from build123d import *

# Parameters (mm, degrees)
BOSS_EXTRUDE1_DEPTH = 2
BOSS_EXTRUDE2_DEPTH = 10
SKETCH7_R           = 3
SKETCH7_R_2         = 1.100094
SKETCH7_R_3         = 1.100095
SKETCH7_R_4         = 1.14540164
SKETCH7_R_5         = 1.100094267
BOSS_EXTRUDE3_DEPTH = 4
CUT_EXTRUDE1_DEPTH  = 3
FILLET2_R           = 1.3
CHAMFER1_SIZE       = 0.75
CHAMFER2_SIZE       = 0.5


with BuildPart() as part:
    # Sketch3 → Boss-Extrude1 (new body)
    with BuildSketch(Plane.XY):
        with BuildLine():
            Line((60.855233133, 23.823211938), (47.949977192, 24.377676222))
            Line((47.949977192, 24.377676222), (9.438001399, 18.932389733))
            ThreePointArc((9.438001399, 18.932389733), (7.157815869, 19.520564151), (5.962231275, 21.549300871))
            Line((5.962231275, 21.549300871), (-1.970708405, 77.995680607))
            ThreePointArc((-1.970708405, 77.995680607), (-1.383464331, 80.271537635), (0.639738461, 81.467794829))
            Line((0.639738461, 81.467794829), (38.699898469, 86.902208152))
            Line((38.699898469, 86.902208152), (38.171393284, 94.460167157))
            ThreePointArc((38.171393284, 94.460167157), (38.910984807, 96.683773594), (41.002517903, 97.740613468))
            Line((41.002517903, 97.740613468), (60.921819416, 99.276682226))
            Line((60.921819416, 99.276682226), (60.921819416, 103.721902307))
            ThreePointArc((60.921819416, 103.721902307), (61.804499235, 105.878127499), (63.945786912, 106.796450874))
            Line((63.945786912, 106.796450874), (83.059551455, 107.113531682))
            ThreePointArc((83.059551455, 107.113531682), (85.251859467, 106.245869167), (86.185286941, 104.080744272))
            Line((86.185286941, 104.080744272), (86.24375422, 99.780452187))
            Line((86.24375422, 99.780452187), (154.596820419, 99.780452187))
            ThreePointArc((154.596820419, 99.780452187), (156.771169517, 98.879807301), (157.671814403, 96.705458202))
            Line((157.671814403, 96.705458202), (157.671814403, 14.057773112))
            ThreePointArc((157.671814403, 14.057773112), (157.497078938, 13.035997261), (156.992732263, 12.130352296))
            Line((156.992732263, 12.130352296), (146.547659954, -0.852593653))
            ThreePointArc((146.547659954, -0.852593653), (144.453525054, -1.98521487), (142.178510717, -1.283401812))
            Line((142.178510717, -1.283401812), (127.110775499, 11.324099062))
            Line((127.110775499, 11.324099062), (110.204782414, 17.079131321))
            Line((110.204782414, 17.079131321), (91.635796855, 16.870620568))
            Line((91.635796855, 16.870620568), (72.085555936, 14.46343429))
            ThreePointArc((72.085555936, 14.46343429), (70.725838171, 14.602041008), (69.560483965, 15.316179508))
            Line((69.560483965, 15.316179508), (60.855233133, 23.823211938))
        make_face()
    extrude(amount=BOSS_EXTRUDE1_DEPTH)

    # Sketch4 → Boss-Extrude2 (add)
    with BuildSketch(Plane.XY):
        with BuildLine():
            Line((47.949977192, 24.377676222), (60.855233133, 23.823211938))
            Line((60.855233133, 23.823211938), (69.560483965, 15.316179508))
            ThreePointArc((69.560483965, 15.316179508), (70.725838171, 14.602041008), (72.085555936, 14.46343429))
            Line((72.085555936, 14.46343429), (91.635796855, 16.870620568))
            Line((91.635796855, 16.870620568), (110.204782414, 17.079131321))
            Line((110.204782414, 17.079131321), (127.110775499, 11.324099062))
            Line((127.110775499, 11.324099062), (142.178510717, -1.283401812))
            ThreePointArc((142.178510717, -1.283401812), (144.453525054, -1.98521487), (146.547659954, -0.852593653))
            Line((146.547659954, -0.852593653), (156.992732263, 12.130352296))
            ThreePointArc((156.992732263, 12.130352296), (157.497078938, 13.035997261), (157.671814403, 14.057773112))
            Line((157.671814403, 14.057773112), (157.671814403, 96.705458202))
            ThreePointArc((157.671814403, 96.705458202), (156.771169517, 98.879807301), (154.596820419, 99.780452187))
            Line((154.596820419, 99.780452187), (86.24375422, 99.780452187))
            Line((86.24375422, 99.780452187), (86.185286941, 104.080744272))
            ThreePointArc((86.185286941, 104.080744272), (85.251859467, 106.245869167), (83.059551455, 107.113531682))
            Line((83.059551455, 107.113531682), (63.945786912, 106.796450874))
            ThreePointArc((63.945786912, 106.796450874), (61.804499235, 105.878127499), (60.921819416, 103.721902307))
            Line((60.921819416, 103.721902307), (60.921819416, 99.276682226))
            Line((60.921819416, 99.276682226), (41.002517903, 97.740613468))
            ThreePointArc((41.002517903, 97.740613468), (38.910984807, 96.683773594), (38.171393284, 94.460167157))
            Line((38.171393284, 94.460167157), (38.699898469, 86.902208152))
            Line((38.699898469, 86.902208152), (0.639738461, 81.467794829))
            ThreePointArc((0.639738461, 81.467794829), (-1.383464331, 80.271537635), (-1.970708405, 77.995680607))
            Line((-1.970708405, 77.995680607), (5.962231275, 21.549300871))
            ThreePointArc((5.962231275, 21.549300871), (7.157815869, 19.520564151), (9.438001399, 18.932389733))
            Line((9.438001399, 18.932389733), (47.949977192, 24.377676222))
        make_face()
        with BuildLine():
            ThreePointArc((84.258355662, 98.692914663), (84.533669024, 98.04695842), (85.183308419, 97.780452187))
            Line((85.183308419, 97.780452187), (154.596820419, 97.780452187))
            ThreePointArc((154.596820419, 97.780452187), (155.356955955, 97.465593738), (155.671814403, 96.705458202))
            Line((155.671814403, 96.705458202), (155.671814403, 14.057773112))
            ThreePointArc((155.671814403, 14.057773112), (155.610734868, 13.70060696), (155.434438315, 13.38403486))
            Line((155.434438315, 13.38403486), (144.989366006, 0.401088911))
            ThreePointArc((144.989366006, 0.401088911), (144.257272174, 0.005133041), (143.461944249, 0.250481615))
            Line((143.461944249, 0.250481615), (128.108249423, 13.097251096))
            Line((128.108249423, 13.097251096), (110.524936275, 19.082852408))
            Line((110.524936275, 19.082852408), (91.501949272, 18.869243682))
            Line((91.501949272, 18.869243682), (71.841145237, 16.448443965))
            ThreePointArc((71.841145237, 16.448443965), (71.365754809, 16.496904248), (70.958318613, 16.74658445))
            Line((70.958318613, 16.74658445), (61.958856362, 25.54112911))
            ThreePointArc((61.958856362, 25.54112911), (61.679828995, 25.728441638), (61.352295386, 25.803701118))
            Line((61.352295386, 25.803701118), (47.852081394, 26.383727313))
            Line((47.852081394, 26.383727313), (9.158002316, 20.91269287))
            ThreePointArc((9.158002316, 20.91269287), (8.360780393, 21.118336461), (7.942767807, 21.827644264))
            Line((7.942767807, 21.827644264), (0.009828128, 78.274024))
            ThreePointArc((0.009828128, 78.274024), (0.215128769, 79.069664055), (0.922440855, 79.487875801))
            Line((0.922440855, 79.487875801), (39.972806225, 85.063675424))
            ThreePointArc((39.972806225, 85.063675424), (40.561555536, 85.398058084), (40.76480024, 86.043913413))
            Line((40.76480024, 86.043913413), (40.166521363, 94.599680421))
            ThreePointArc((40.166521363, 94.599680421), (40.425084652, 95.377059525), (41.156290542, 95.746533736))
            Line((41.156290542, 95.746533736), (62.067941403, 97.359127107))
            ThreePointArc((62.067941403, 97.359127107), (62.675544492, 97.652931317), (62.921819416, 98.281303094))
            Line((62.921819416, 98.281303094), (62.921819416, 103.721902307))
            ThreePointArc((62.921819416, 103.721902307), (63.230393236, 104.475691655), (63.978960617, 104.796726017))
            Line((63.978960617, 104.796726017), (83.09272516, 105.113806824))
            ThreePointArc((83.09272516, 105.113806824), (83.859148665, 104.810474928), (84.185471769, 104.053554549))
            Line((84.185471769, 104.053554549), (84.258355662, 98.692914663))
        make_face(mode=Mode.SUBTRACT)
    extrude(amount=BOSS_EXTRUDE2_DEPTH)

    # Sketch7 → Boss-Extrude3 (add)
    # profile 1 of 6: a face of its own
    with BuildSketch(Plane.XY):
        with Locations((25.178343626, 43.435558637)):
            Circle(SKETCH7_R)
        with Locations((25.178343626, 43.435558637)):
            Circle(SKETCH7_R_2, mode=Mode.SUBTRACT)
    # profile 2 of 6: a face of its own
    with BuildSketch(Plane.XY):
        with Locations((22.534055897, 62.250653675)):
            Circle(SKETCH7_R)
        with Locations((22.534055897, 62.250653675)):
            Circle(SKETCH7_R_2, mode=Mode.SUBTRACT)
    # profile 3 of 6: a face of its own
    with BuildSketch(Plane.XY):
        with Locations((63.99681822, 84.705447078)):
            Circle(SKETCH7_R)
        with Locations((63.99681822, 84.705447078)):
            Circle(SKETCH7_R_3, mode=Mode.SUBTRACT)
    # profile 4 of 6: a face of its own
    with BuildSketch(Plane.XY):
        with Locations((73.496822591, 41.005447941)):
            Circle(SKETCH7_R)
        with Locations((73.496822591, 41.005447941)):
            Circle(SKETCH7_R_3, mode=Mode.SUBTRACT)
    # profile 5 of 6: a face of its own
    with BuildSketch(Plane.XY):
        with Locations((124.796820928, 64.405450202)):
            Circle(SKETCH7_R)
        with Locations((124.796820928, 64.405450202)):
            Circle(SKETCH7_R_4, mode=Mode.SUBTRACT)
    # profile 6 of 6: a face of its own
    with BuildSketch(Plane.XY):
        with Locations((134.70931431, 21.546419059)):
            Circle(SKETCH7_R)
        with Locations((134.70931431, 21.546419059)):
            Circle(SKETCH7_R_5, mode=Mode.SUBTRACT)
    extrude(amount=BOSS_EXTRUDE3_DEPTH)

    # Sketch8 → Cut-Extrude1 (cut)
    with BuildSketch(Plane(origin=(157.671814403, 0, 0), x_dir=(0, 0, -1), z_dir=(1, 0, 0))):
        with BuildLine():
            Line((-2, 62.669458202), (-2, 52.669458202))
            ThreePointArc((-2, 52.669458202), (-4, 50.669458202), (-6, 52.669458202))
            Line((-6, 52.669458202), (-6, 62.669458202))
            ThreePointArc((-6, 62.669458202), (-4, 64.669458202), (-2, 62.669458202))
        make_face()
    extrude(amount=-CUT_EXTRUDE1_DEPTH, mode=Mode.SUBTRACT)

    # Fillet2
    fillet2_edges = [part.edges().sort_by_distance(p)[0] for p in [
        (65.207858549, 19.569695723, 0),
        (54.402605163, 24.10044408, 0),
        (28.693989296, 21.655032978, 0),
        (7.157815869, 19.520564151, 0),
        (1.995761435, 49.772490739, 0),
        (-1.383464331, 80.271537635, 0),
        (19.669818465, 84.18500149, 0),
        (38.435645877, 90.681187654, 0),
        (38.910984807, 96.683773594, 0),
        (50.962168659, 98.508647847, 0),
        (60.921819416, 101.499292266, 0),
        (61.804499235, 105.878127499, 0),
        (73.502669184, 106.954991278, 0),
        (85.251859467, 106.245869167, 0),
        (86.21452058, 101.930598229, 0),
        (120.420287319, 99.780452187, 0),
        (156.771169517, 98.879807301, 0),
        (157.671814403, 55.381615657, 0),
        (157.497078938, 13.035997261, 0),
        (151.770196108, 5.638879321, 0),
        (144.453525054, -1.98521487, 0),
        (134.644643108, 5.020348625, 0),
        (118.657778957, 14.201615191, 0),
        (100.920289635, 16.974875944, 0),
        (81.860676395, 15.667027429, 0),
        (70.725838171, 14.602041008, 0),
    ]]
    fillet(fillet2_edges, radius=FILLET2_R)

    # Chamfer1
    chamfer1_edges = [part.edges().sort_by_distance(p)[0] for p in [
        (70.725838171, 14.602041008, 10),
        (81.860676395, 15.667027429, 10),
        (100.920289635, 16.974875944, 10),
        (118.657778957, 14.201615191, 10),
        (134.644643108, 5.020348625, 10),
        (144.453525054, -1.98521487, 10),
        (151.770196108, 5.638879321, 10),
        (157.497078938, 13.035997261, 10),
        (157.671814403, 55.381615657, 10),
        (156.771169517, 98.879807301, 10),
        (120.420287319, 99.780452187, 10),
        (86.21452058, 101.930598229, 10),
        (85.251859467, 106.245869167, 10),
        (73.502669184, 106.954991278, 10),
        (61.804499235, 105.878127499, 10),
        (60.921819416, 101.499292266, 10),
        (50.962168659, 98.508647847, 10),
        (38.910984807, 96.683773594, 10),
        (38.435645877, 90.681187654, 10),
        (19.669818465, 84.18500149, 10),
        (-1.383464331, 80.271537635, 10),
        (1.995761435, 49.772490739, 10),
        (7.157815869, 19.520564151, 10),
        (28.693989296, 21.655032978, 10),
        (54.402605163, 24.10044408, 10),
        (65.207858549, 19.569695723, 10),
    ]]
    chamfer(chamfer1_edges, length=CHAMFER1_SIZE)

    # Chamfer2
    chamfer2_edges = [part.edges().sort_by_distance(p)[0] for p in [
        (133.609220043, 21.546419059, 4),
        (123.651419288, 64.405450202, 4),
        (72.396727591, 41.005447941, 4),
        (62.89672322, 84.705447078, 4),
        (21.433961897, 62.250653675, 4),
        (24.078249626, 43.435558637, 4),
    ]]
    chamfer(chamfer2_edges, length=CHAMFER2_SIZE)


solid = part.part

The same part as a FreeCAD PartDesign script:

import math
import FreeCAD as App
import Part
import Sketcher

V = App.Vector
Q = App.Units.Quantity


def edges_at(feature, points):
    """Names of the edges that pass closest to the given points."""
    edges = feature.Shape.Edges
    near = lambda p: min(range(len(edges)), key=lambda i: edges[i].distToShape(Part.Vertex(*p))[0])
    return sorted({f"Edge{near(p) + 1}" for p in points})

doc = App.newDocument("Part")
params = doc.addObject("Spreadsheet::Sheet", "Params")
for row, (alias, value) in enumerate([
    ("pad1_length", "2 mm"),
    ("pad2_length", "10 mm"),
    ("sketch3_diameter", "6 mm"),
    ("pad3_length", "4 mm"),
    ("sketch4_radius", "2 mm"),
    ("sketch4_width", "10 mm"),
    ("pocket1_length", "3 mm"),
    ("fillet_radius", "1.3 mm"),
    ("chamfer_size", "0.75 mm"),
    ("chamfer2_size", "0.5 mm"),
], start=1):
    params.set(f"A{row}", alias)
    params.set(f"B{row}", "=" + value)
    params.setAlias(f"B{row}", alias)

body = doc.addObject("PartDesign::Body", "Body")

sketch1 = doc.addObject("Sketcher::SketchObject", "Sketch")
body.addObject(sketch1)
sketch1.AttachmentSupport = (doc.XY_Plane, [""])
sketch1.MapMode = "FlatFace"
sketch1.addGeometry(Part.LineSegment(V(47.9, 24.4, 0), V(60.9, 23.8, 0)), False)
sketch1.addGeometry(Part.LineSegment(V(60.9, 23.8, 0), V(69.6, 15.3, 0)), False)
sketch1.addGeometry(Part.ArcOfCircle(Part.Circle(V(71.7, 17.5, 0), V(0, 0, 1), 3.1), math.radians(-134), math.radians(-83)), False)
sketch1.addGeometry(Part.LineSegment(V(72.1, 14.5, 0), V(91.6, 16.9, 0)), False)
sketch1.addGeometry(Part.LineSegment(V(91.6, 16.9, 0), V(110.2, 17.1, 0)), False)
sketch1.addGeometry(Part.LineSegment(V(110.2, 17.1, 0), V(127.1, 11.3, 0)), False)
sketch1.addGeometry(Part.LineSegment(V(127.1, 11.3, 0), V(142.2, -1.3, 0)), False)
sketch1.addGeometry(Part.ArcOfCircle(Part.Circle(V(144.2, 1.1, 0), V(0, 0, 1), 3.1), math.radians(-130), math.radians(-39)), False)
sketch1.addGeometry(Part.LineSegment(V(146.5, -0.9, 0), V(157, 12.1, 0)), False)
sketch1.addGeometry(Part.ArcOfCircle(Part.Circle(V(154.6, 14.1, 0), V(0, 0, 1), 3.1), math.radians(-39), math.radians(0)), False)
sketch1.addGeometry(Part.LineSegment(V(157.7, 14.1, 0), V(157.7, 96.7, 0)), False)
sketch1.addGeometry(Part.ArcOfCircle(Part.Circle(V(154.6, 96.7, 0), V(0, 0, 1), 3.1), math.radians(0), math.radians(90)), False)
sketch1.addGeometry(Part.LineSegment(V(154.6, 99.8, 0), V(86.2, 99.8, 0)), False)
sketch1.addGeometry(Part.LineSegment(V(86.2, 99.8, 0), V(86.2, 104.1, 0)), False)
sketch1.addGeometry(Part.ArcOfCircle(Part.Circle(V(83.1, 104, 0), V(0, 0, 1), 3.1), math.radians(1), math.radians(91)), False)
sketch1.addGeometry(Part.LineSegment(V(83.1, 107.1, 0), V(63.9, 106.8, 0)), False)
sketch1.addGeometry(Part.ArcOfCircle(Part.Circle(V(64, 103.7, 0), V(0, 0, 1), 3.1), math.radians(91), math.radians(180)), False)
sketch1.addGeometry(Part.LineSegment(V(60.9, 103.7, 0), V(60.9, 99.3, 0)), False)
sketch1.addGeometry(Part.LineSegment(V(60.9, 99.3, 0), V(41, 97.7, 0)), False)
sketch1.addGeometry(Part.ArcOfCircle(Part.Circle(V(41.2, 94.7, 0), V(0, 0, 1), 3.1), math.radians(94), math.radians(184)), False)
sketch1.addGeometry(Part.LineSegment(V(38.2, 94.5, 0), V(38.7, 86.9, 0)), False)
sketch1.addGeometry(Part.LineSegment(V(38.7, 86.9, 0), V(0.6, 81.5, 0)), False)
sketch1.addGeometry(Part.ArcOfCircle(Part.Circle(V(1.1, 78.4, 0), V(0, 0, 1), 3.1), math.radians(98), math.radians(188)), False)
sketch1.addGeometry(Part.LineSegment(V(-2, 78, 0), V(6, 21.5, 0)), False)
sketch1.addGeometry(Part.ArcOfCircle(Part.Circle(V(9, 22, 0), V(0, 0, 1), 3.1), math.radians(-172), math.radians(-82)), False)
sketch1.addGeometry(Part.LineSegment(V(9.4, 18.9, 0), V(47.9, 24.4, 0)), False)
sketch1.addConstraint(Sketcher.Constraint("Coincident", 0, 2, 1, 1))
sketch1.addConstraint(Sketcher.Constraint("Tangent", 1, 2, 2, 1))
sketch1.addConstraint(Sketcher.Constraint("Tangent", 2, 2, 3, 1))
sketch1.addConstraint(Sketcher.Constraint("Coincident", 3, 2, 4, 1))
sketch1.addConstraint(Sketcher.Constraint("Coincident", 4, 2, 5, 1))
sketch1.addConstraint(Sketcher.Constraint("Coincident", 5, 2, 6, 1))
sketch1.addConstraint(Sketcher.Constraint("Tangent", 6, 2, 7, 1))
sketch1.addConstraint(Sketcher.Constraint("Tangent", 7, 2, 8, 1))
sketch1.addConstraint(Sketcher.Constraint("Tangent", 8, 2, 9, 1))
sketch1.addConstraint(Sketcher.Constraint("Tangent", 9, 2, 10, 1))
sketch1.addConstraint(Sketcher.Constraint("Tangent", 10, 2, 11, 1))
sketch1.addConstraint(Sketcher.Constraint("Tangent", 11, 2, 12, 1))
sketch1.addConstraint(Sketcher.Constraint("Coincident", 12, 2, 13, 1))
sketch1.addConstraint(Sketcher.Constraint("Tangent", 13, 2, 14, 1))
sketch1.addConstraint(Sketcher.Constraint("Tangent", 14, 2, 15, 1))
sketch1.addConstraint(Sketcher.Constraint("Tangent", 15, 2, 16, 1))
sketch1.addConstraint(Sketcher.Constraint("Tangent", 16, 2, 17, 1))
sketch1.addConstraint(Sketcher.Constraint("Coincident", 17, 2, 18, 1))
sketch1.addConstraint(Sketcher.Constraint("Tangent", 18, 2, 19, 1))
sketch1.addConstraint(Sketcher.Constraint("Tangent", 19, 2, 20, 1))
sketch1.addConstraint(Sketcher.Constraint("Coincident", 20, 2, 21, 1))
sketch1.addConstraint(Sketcher.Constraint("Tangent", 21, 2, 22, 1))
sketch1.addConstraint(Sketcher.Constraint("Tangent", 22, 2, 23, 1))
sketch1.addConstraint(Sketcher.Constraint("Tangent", 23, 2, 24, 1))
sketch1.addConstraint(Sketcher.Constraint("Tangent", 24, 2, 25, 1))
sketch1.addConstraint(Sketcher.Constraint("Coincident", 25, 2, 0, 1))
sketch1.addConstraint(Sketcher.Constraint("Vertical", 10))
sketch1.addConstraint(Sketcher.Constraint("Horizontal", 12))
sketch1.addConstraint(Sketcher.Constraint("Vertical", 17))
sketch1.addConstraint(Sketcher.Constraint("Equal", 7, 11))
sketch1.addConstraint(Sketcher.Constraint("Angle", 20, Q("-85.999991 deg")))
sketch1.addConstraint(Sketcher.Constraint("Radius", 16, 3.074972))
sketch1.addConstraint(Sketcher.Constraint("Radius", 22, 3.075032))
sketch1.addConstraint(Sketcher.Constraint("DistanceX", -1, 1, 9, 3, 154.597))
sketch1.addConstraint(Sketcher.Constraint("DistanceX", -1, 1, 24, 2, 9.438001))
sketch1.addConstraint(Sketcher.Constraint("Radius", 2, 3.075146))
sketch1.addConstraint(Sketcher.Constraint("Radius", 7, 3.074995))
sketch1.addConstraint(Sketcher.Constraint("Radius", 9, 3.074815))
sketch1.addConstraint(Sketcher.Constraint("Radius", 14, 3.075015))
sketch1.addConstraint(Sketcher.Constraint("Radius", 19, 3.075044))
sketch1.addConstraint(Sketcher.Constraint("Radius", 24, 3.075174))
sketch1.addConstraint(Sketcher.Constraint("DistanceY", 7, 3, 14, 3, 102.964))
sketch1.addConstraint(Sketcher.Constraint("DistanceY", 12, 2, 15, 2, 7.015999))
sketch1.addConstraint(Sketcher.Constraint("DistanceX", 23, 2, 0, 2, 54.893002))
sketch1.addConstraint(Sketcher.Constraint("Distance", 23, 57.001099))
sketch1.addConstraint(Sketcher.Constraint("DistanceY", 17, 2, 17, 1, 4.44522))
sketch1.addConstraint(Sketcher.Constraint("DistanceY", -1, 1, 5, 2, 11.324099))
sketch1.addConstraint(Sketcher.Constraint("DistanceY", 6, 2, -1, 1, 1.283402))
sketch1.addConstraint(Sketcher.Constraint("DistanceX", -1, 1, 20, 2, 38.699898))
sketch1.addConstraint(Sketcher.Constraint("DistanceY", -1, 1, 23, 2, 21.549301))
sketch1.addConstraint(Sketcher.Constraint("DistanceX", 2, 3, 14, 3, 11.4008))
sketch1.addConstraint(Sketcher.Constraint("DistanceY", 9, 3, 19, 3, 80.616899))
sketch1.addConstraint(Sketcher.Constraint("DistanceY", 22, 3, 14, 3, 25.615302))
sketch1.addConstraint(Sketcher.Constraint("DistanceY", 1, 2, 24, 3, 6.661099))
sketch1.addConstraint(Sketcher.Constraint("DistanceX", 2, 3, 2, 2, 0.375799))
sketch1.addConstraint(Sketcher.Constraint("DistanceY", 4, 2, 2, 3, 0.4364))
sketch1.addConstraint(Sketcher.Constraint("DistanceX", 1, 2, 4, 2, 40.644298))
sketch1.addConstraint(Sketcher.Constraint("DistanceX", 15, 2, 13, 2, 22.2395))
sketch1.addConstraint(Sketcher.Constraint("DistanceX", 18, 2, 17, 2, 19.919302))
sketch1.addConstraint(Sketcher.Constraint("DistanceX", 22, 2, 19, 2, 40.142102))
sketch1.addConstraint(Sketcher.Constraint("Distance", 0, 12.917162))
sketch1.addConstraint(Sketcher.Constraint("Distance", 1, 12.171729))
sketch1.addConstraint(Sketcher.Constraint("Distance", 3, 19.69788))
sketch1.addConstraint(Sketcher.Constraint("Distance", 6, 19.646519))
sketch1.addConstraint(Sketcher.Constraint("Distance", 13, 4.30069))
sketch1.addConstraint(Sketcher.Constraint("Distance", 18, 19.97844))
sketch1.addConstraint(Sketcher.Constraint("Distance", 21, 38.446178))
sketch1.addConstraint(Sketcher.Constraint("Distance", 25, 38.895031))
sketch1.addConstraint(Sketcher.Constraint("DistanceX", -1, 1, 6, 2, 142.178511))
pad1 = doc.addObject("PartDesign::Pad", "Pad")
body.addObject(pad1)
pad1.Profile = sketch1
pad1.setExpression("Length", "Params.pad1_length")

sketch2 = doc.addObject("Sketcher::SketchObject", "Sketch001")
body.addObject(sketch2)
sketch2.AttachmentSupport = (doc.XY_Plane, [""])
sketch2.MapMode = "FlatFace"
sketch2.addGeometry(Part.LineSegment(V(47.9, 24.4, 0), V(60.9, 23.8, 0)), False)
sketch2.addGeometry(Part.LineSegment(V(60.9, 23.8, 0), V(69.6, 15.3, 0)), False)
sketch2.addGeometry(Part.ArcOfCircle(Part.Circle(V(71.7, 17.5, 0), V(0, 0, 1), 3.1), math.radians(-134), math.radians(-83)), False)
sketch2.addGeometry(Part.LineSegment(V(72.1, 14.5, 0), V(91.6, 16.9, 0)), False)
sketch2.addGeometry(Part.LineSegment(V(91.6, 16.9, 0), V(110.2, 17.1, 0)), False)
sketch2.addGeometry(Part.LineSegment(V(110.2, 17.1, 0), V(127.1, 11.3, 0)), False)
sketch2.addGeometry(Part.LineSegment(V(127.1, 11.3, 0), V(142.2, -1.3, 0)), False)
sketch2.addGeometry(Part.ArcOfCircle(Part.Circle(V(144.2, 1.1, 0), V(0, 0, 1), 3.1), math.radians(-130), math.radians(-39)), False)
sketch2.addGeometry(Part.LineSegment(V(146.5, -0.9, 0), V(157, 12.1, 0)), False)
sketch2.addGeometry(Part.ArcOfCircle(Part.Circle(V(154.6, 14.1, 0), V(0, 0, 1), 3.1), math.radians(-39), math.radians(0)), False)
sketch2.addGeometry(Part.LineSegment(V(157.7, 14.1, 0), V(157.7, 96.7, 0)), False)
sketch2.addGeometry(Part.ArcOfCircle(Part.Circle(V(154.6, 96.7, 0), V(0, 0, 1), 3.1), math.radians(0), math.radians(90)), False)
sketch2.addGeometry(Part.LineSegment(V(154.6, 99.8, 0), V(86.2, 99.8, 0)), False)
sketch2.addGeometry(Part.LineSegment(V(86.2, 99.8, 0), V(86.2, 104.1, 0)), False)
sketch2.addGeometry(Part.ArcOfCircle(Part.Circle(V(83.1, 104, 0), V(0, 0, 1), 3.1), math.radians(1), math.radians(91)), False)
sketch2.addGeometry(Part.LineSegment(V(83.1, 107.1, 0), V(63.9, 106.8, 0)), False)
sketch2.addGeometry(Part.ArcOfCircle(Part.Circle(V(64, 103.7, 0), V(0, 0, 1), 3.1), math.radians(91), math.radians(180)), False)
sketch2.addGeometry(Part.LineSegment(V(60.9, 103.7, 0), V(60.9, 99.3, 0)), False)
sketch2.addGeometry(Part.LineSegment(V(60.9, 99.3, 0), V(41, 97.7, 0)), False)
sketch2.addGeometry(Part.ArcOfCircle(Part.Circle(V(41.2, 94.7, 0), V(0, 0, 1), 3.1), math.radians(94), math.radians(184)), False)
sketch2.addGeometry(Part.LineSegment(V(38.2, 94.5, 0), V(38.7, 86.9, 0)), False)
sketch2.addGeometry(Part.LineSegment(V(38.7, 86.9, 0), V(0.6, 81.5, 0)), False)
sketch2.addGeometry(Part.ArcOfCircle(Part.Circle(V(1.1, 78.4, 0), V(0, 0, 1), 3.1), math.radians(98), math.radians(188)), False)
sketch2.addGeometry(Part.LineSegment(V(-2, 78, 0), V(6, 21.5, 0)), False)
sketch2.addGeometry(Part.ArcOfCircle(Part.Circle(V(9, 22, 0), V(0, 0, 1), 3.1), math.radians(-172), math.radians(-82)), False)
sketch2.addGeometry(Part.LineSegment(V(9.4, 18.9, 0), V(47.9, 24.4, 0)), False)
sketch2.addGeometry(Part.LineSegment(V(84.2, 104.1, 0), V(84.3, 98.7, 0)), False)
sketch2.addGeometry(Part.ArcOfCircle(Part.Circle(V(85.2, 98.7, 0), V(0, 0, 1), 0.9), math.radians(-179), math.radians(-90)), False)
sketch2.addGeometry(Part.LineSegment(V(85.2, 97.8, 0), V(154.6, 97.8, 0)), False)
sketch2.addGeometry(Part.ArcOfCircle(Part.Circle(V(154.6, 96.7, 0), V(0, 0, 1), 1.1), math.radians(0), math.radians(90)), False)
sketch2.addGeometry(Part.LineSegment(V(155.7, 96.7, 0), V(155.7, 14.1, 0)), False)
sketch2.addGeometry(Part.ArcOfCircle(Part.Circle(V(154.6, 14.1, 0), V(0, 0, 1), 1.1), math.radians(-39), math.radians(0)), False)
sketch2.addGeometry(Part.LineSegment(V(155.4, 13.4, 0), V(145, 0.4, 0)), False)
sketch2.addGeometry(Part.ArcOfCircle(Part.Circle(V(144.2, 1.1, 0), V(0, 0, 1), 1.1), math.radians(-130), math.radians(-39)), False)
sketch2.addGeometry(Part.LineSegment(V(143.5, 0.3, 0), V(128.1, 13.1, 0)), False)
sketch2.addGeometry(Part.LineSegment(V(128.1, 13.1, 0), V(110.5, 19.1, 0)), False)
sketch2.addGeometry(Part.LineSegment(V(110.5, 19.1, 0), V(91.5, 18.9, 0)), False)
sketch2.addGeometry(Part.LineSegment(V(91.5, 18.9, 0), V(71.8, 16.4, 0)), False)
sketch2.addGeometry(Part.ArcOfCircle(Part.Circle(V(71.7, 17.5, 0), V(0, 0, 1), 1.1), math.radians(-134), math.radians(-83)), False)
sketch2.addGeometry(Part.LineSegment(V(71, 16.7, 0), V(62, 25.5, 0)), False)
sketch2.addGeometry(Part.ArcOfCircle(Part.Circle(V(61.3, 24.9, 0), V(0, 0, 1), 0.9), math.radians(46), math.radians(88)), False)
sketch2.addGeometry(Part.LineSegment(V(61.4, 25.8, 0), V(47.9, 26.4, 0)), False)
sketch2.addGeometry(Part.LineSegment(V(47.9, 26.4, 0), V(9.2, 20.9, 0)), False)
sketch2.addGeometry(Part.ArcOfCircle(Part.Circle(V(9, 22, 0), V(0, 0, 1), 1.1), math.radians(-172), math.radians(-82)), False)
sketch2.addGeometry(Part.LineSegment(V(7.9, 21.8, 0), V(0, 78.3, 0)), False)
sketch2.addGeometry(Part.ArcOfCircle(Part.Circle(V(1.1, 78.4, 0), V(0, 0, 1), 1.1), math.radians(98), math.radians(188)), False)
sketch2.addGeometry(Part.LineSegment(V(0.9, 79.5, 0), V(40, 85.1, 0)), False)
sketch2.addGeometry(Part.ArcOfCircle(Part.Circle(V(39.8, 86, 0), V(0, 0, 1), 0.9), math.radians(-82), math.radians(4)), False)
sketch2.addGeometry(Part.LineSegment(V(40.8, 86, 0), V(40.2, 94.6, 0)), False)
sketch2.addGeometry(Part.ArcOfCircle(Part.Circle(V(41.2, 94.7, 0), V(0, 0, 1), 1.1), math.radians(94), math.radians(184)), False)
sketch2.addGeometry(Part.LineSegment(V(41.2, 95.7, 0), V(62.1, 97.4, 0)), False)
sketch2.addGeometry(Part.ArcOfCircle(Part.Circle(V(62, 98.3, 0), V(0, 0, 1), 0.9), math.radians(-86), math.radians(0)), False)
sketch2.addGeometry(Part.LineSegment(V(62.9, 98.3, 0), V(62.9, 103.7, 0)), False)
sketch2.addGeometry(Part.ArcOfCircle(Part.Circle(V(64, 103.7, 0), V(0, 0, 1), 1.1), math.radians(91), math.radians(180)), False)
sketch2.addGeometry(Part.LineSegment(V(64, 104.8, 0), V(83.1, 105.1, 0)), False)
sketch2.addGeometry(Part.ArcOfCircle(Part.Circle(V(83.1, 104, 0), V(0, 0, 1), 1.1), math.radians(1), math.radians(91)), False)
sketch2.addConstraint(Sketcher.Constraint("Coincident", 0, 2, 1, 1))
sketch2.addConstraint(Sketcher.Constraint("Tangent", 1, 2, 2, 1))
sketch2.addConstraint(Sketcher.Constraint("Tangent", 2, 2, 3, 1))
sketch2.addConstraint(Sketcher.Constraint("Coincident", 3, 2, 4, 1))
sketch2.addConstraint(Sketcher.Constraint("Coincident", 4, 2, 5, 1))
sketch2.addConstraint(Sketcher.Constraint("Coincident", 5, 2, 6, 1))
sketch2.addConstraint(Sketcher.Constraint("Tangent", 6, 2, 7, 1))
sketch2.addConstraint(Sketcher.Constraint("Tangent", 7, 2, 8, 1))
sketch2.addConstraint(Sketcher.Constraint("Tangent", 8, 2, 9, 1))
sketch2.addConstraint(Sketcher.Constraint("Tangent", 9, 2, 10, 1))
sketch2.addConstraint(Sketcher.Constraint("Tangent", 10, 2, 11, 1))
sketch2.addConstraint(Sketcher.Constraint("Tangent", 11, 2, 12, 1))
sketch2.addConstraint(Sketcher.Constraint("Coincident", 12, 2, 13, 1))
sketch2.addConstraint(Sketcher.Constraint("Tangent", 13, 2, 14, 1))
sketch2.addConstraint(Sketcher.Constraint("Tangent", 14, 2, 15, 1))
sketch2.addConstraint(Sketcher.Constraint("Tangent", 15, 2, 16, 1))
sketch2.addConstraint(Sketcher.Constraint("Tangent", 16, 2, 17, 1))
sketch2.addConstraint(Sketcher.Constraint("Coincident", 17, 2, 18, 1))
sketch2.addConstraint(Sketcher.Constraint("Tangent", 18, 2, 19, 1))
sketch2.addConstraint(Sketcher.Constraint("Tangent", 19, 2, 20, 1))
sketch2.addConstraint(Sketcher.Constraint("Coincident", 20, 2, 21, 1))
sketch2.addConstraint(Sketcher.Constraint("Tangent", 21, 2, 22, 1))
sketch2.addConstraint(Sketcher.Constraint("Tangent", 22, 2, 23, 1))
sketch2.addConstraint(Sketcher.Constraint("Tangent", 23, 2, 24, 1))
sketch2.addConstraint(Sketcher.Constraint("Tangent", 24, 2, 25, 1))
sketch2.addConstraint(Sketcher.Constraint("Coincident", 25, 2, 0, 1))
sketch2.addConstraint(Sketcher.Constraint("Tangent", 26, 2, 27, 1))
sketch2.addConstraint(Sketcher.Constraint("Tangent", 27, 2, 28, 1))
sketch2.addConstraint(Sketcher.Constraint("Tangent", 28, 2, 29, 2))
sketch2.addConstraint(Sketcher.Constraint("Tangent", 29, 1, 30, 1))
sketch2.addConstraint(Sketcher.Constraint("Tangent", 30, 2, 31, 2))
sketch2.addConstraint(Sketcher.Constraint("Tangent", 31, 1, 32, 1))
sketch2.addConstraint(Sketcher.Constraint("Tangent", 32, 2, 33, 2))
sketch2.addConstraint(Sketcher.Constraint("Tangent", 33, 1, 34, 1))
sketch2.addConstraint(Sketcher.Constraint("Coincident", 34, 2, 35, 1))
sketch2.addConstraint(Sketcher.Constraint("Coincident", 35, 2, 36, 1))
sketch2.addConstraint(Sketcher.Constraint("Coincident", 36, 2, 37, 1))
sketch2.addConstraint(Sketcher.Constraint("Tangent", 37, 2, 38, 2))
sketch2.addConstraint(Sketcher.Constraint("Tangent", 38, 1, 39, 1))
sketch2.addConstraint(Sketcher.Constraint("Tangent", 39, 2, 40, 1))
sketch2.addConstraint(Sketcher.Constraint("Coincident", 40, 2, 41, 1))
sketch2.addConstraint(Sketcher.Constraint("Coincident", 41, 2, 42, 1))
sketch2.addConstraint(Sketcher.Constraint("Tangent", 42, 2, 43, 2))
sketch2.addConstraint(Sketcher.Constraint("Tangent", 43, 1, 44, 1))
sketch2.addConstraint(Sketcher.Constraint("Tangent", 44, 2, 45, 2))
sketch2.addConstraint(Sketcher.Constraint("Tangent", 45, 1, 46, 1))
sketch2.addConstraint(Sketcher.Constraint("Tangent", 46, 2, 47, 1))
sketch2.addConstraint(Sketcher.Constraint("Coincident", 47, 2, 48, 1))
sketch2.addConstraint(Sketcher.Constraint("Tangent", 48, 2, 49, 2))
sketch2.addConstraint(Sketcher.Constraint("Tangent", 49, 1, 50, 1))
sketch2.addConstraint(Sketcher.Constraint("Tangent", 50, 2, 51, 1))
sketch2.addConstraint(Sketcher.Constraint("Coincident", 51, 2, 52, 1))
sketch2.addConstraint(Sketcher.Constraint("Tangent", 52, 2, 53, 2))
sketch2.addConstraint(Sketcher.Constraint("Tangent", 53, 1, 54, 1))
sketch2.addConstraint(Sketcher.Constraint("Tangent", 54, 2, 55, 2))
sketch2.addConstraint(Sketcher.Constraint("Tangent", 55, 1, 26, 1))
sketch2.addConstraint(Sketcher.Constraint("Vertical", 10))
sketch2.addConstraint(Sketcher.Constraint("Horizontal", 12))
sketch2.addConstraint(Sketcher.Constraint("Vertical", 17))
sketch2.addConstraint(Sketcher.Constraint("Horizontal", 28))
sketch2.addConstraint(Sketcher.Constraint("Vertical", 30))
sketch2.addConstraint(Sketcher.Constraint("Vertical", 52))
sketch2.addConstraint(Sketcher.Constraint("Coincident", 29, 3, 11, 3))
sketch2.addConstraint(Sketcher.Constraint("Coincident", 31, 3, 9, 3))
sketch2.addConstraint(Sketcher.Constraint("Coincident", 33, 3, 7, 3))
sketch2.addConstraint(Sketcher.Constraint("Coincident", 38, 3, 2, 3))
sketch2.addConstraint(Sketcher.Constraint("Coincident", 43, 3, 24, 3))
sketch2.addConstraint(Sketcher.Constraint("Coincident", 45, 3, 22, 3))
sketch2.addConstraint(Sketcher.Constraint("Coincident", 49, 3, 19, 3))
sketch2.addConstraint(Sketcher.Constraint("Coincident", 53, 3, 16, 3))
sketch2.addConstraint(Sketcher.Constraint("Coincident", 55, 3, 14, 3))
sketch2.addConstraint(Sketcher.Constraint("Equal", 7, 11))
sketch2.addConstraint(Sketcher.Constraint("Equal", 29, 33))
sketch2.addConstraint(Sketcher.Constraint("Equal", 47, 51))
sketch2.addConstraint(Sketcher.Constraint("Parallel", 13, 26))
sketch2.addConstraint(Sketcher.Constraint("Parallel", 6, 34))
sketch2.addConstraint(Sketcher.Constraint("Parallel", 5, 35))
sketch2.addConstraint(Sketcher.Constraint("Parallel", 4, 36))
sketch2.addConstraint(Sketcher.Constraint("Parallel", 3, 37))
sketch2.addConstraint(Sketcher.Constraint("Parallel", 1, 39))
sketch2.addConstraint(Sketcher.Constraint("Parallel", 0, 41))
sketch2.addConstraint(Sketcher.Constraint("Parallel", 25, 42))
sketch2.addConstraint(Sketcher.Constraint("Parallel", 23, 44))
sketch2.addConstraint(Sketcher.Constraint("Parallel", 21, 46))
sketch2.addConstraint(Sketcher.Constraint("Parallel", 20, 48))
sketch2.addConstraint(Sketcher.Constraint("Parallel", 18, 50))
sketch2.addConstraint(Sketcher.Constraint("Parallel", 15, 54))
sketch2.addConstraint(Sketcher.Constraint("Angle", 20, Q("-85.999991 deg")))
sketch2.addConstraint(Sketcher.Constraint("Radius", 16, 3.074972))
sketch2.addConstraint(Sketcher.Constraint("Radius", 22, 3.075032))
sketch2.addConstraint(Sketcher.Constraint("Radius", 27, 0.925038))
sketch2.addConstraint(Sketcher.Constraint("Radius", 45, 1.075032))
sketch2.addConstraint(Sketcher.Constraint("Radius", 53, 1.074972))
sketch2.addConstraint(Sketcher.Constraint("DistanceY", 52, 1, 52, 2, 5.440599))
sketch2.addConstraint(Sketcher.Constraint("DistanceX", -1, 1, 9, 3, 154.597))
sketch2.addConstraint(Sketcher.Constraint("DistanceX", -1, 1, 24, 2, 9.438001))
sketch2.addConstraint(Sketcher.Constraint("Radius", 2, 3.075146))
sketch2.addConstraint(Sketcher.Constraint("Radius", 7, 3.074995))
sketch2.addConstraint(Sketcher.Constraint("Radius", 9, 3.074815))
sketch2.addConstraint(Sketcher.Constraint("Radius", 14, 3.075015))
sketch2.addConstraint(Sketcher.Constraint("Radius", 19, 3.075044))
sketch2.addConstraint(Sketcher.Constraint("Radius", 24, 3.075174))
sketch2.addConstraint(Sketcher.Constraint("Radius", 29, 1.074994))
sketch2.addConstraint(Sketcher.Constraint("Radius", 38, 1.075146))
sketch2.addConstraint(Sketcher.Constraint("Radius", 40, 0.924988))
sketch2.addConstraint(Sketcher.Constraint("Radius", 47, 0.924997))
sketch2.addConstraint(Sketcher.Constraint("Radius", 49, 1.075044))
sketch2.addConstraint(Sketcher.Constraint("Distance", 23, 57.001099))
sketch2.addConstraint(Sketcher.Constraint("DistanceY", 17, 2, 17, 1, 4.44522))
sketch2.addConstraint(Sketcher.Constraint("DistanceY", -1, 1, 5, 2, 11.324099))
sketch2.addConstraint(Sketcher.Constraint("DistanceY", 6, 2, -1, 1, 1.283402))
sketch2.addConstraint(Sketcher.Constraint("DistanceX", -1, 1, 20, 2, 38.699898))
sketch2.addConstraint(Sketcher.Constraint("DistanceY", -1, 1, 23, 2, 21.549301))
sketch2.addConstraint(Sketcher.Constraint("DistanceY", -1, 1, 40, 2, 25.803701))
sketch2.addConstraint(Sketcher.Constraint("DistanceX", -1, 1, 47, 2, 40.7648))
sketch2.addConstraint(Sketcher.Constraint("Distance", 0, 12.917162))
sketch2.addConstraint(Sketcher.Constraint("Distance", 1, 12.171729))
sketch2.addConstraint(Sketcher.Constraint("Distance", 3, 19.69788))
sketch2.addConstraint(Sketcher.Constraint("Distance", 6, 19.646519))
sketch2.addConstraint(Sketcher.Constraint("Distance", 13, 4.30069))
sketch2.addConstraint(Sketcher.Constraint("Distance", 18, 19.97844))
sketch2.addConstraint(Sketcher.Constraint("Distance", 21, 38.446178))
sketch2.addConstraint(Sketcher.Constraint("Distance", 25, 38.895031))
sketch2.addConstraint(Sketcher.Constraint("Distance", 41, 13.512668))
sketch2.addConstraint(Sketcher.Constraint("Distance", 48, 8.576659))
sketch2.addConstraint(Sketcher.Constraint("DistanceX", 12, 2, 12, 1, 68.353066))
sketch2.addConstraint(Sketcher.Constraint("DistanceX", 28, 1, 28, 2, 69.413512))
sketch2.addConstraint(Sketcher.Constraint("DistanceY", 10, 1, 10, 2, 82.647685))
sketch2.addConstraint(Sketcher.Constraint("DistanceY", -1, 1, 2, 3, 17.515531))
sketch2.addConstraint(Sketcher.Constraint("DistanceY", -1, 1, 11, 3, 96.705458))
sketch2.addConstraint(Sketcher.Constraint("DistanceX", -1, 1, 16, 3, 63.996791))
sketch2.addConstraint(Sketcher.Constraint("DistanceY", -1, 1, 19, 3, 94.674672))
sketch2.addConstraint(Sketcher.Constraint("DistanceX", -1, 1, 24, 3, 9.007478))
sketch2.addConstraint(Sketcher.Constraint("DistanceY", -1, 1, 0, 2, 23.823212))
sketch2.addConstraint(Sketcher.Constraint("DistanceY", -1, 1, 3, 2, 16.870621))
sketch2.addConstraint(Sketcher.Constraint("DistanceY", -1, 1, 4, 2, 17.079131))
sketch2.addConstraint(Sketcher.Constraint("DistanceX", -1, 1, 6, 2, 142.178511))
sketch2.addConstraint(Sketcher.Constraint("DistanceX", -1, 1, 34, 2, 128.108249))
sketch2.addConstraint(Sketcher.Constraint("DistanceX", -1, 1, 36, 2, 91.501949))
sketch2.addConstraint(Sketcher.Constraint("Distance", 4, 18.570156))
pad2 = doc.addObject("PartDesign::Pad", "Pad001")
body.addObject(pad2)
pad2.Profile = sketch2
pad2.setExpression("Length", "Params.pad2_length")

sketch3 = doc.addObject("Sketcher::SketchObject", "Sketch002")
body.addObject(sketch3)
sketch3.AttachmentSupport = (doc.XY_Plane, [""])
sketch3.MapMode = "FlatFace"
sketch3.addGeometry(Part.Circle(V(25.2, 43.4, 0), V(0, 0, 1), 3), False)
sketch3.addGeometry(Part.Circle(V(25.2, 43.4, 0), V(0, 0, 1), 1.1), False)
sketch3.addGeometry(Part.Circle(V(22.5, 62.3, 0), V(0, 0, 1), 3), False)
sketch3.addGeometry(Part.Circle(V(22.5, 62.3, 0), V(0, 0, 1), 1.1), False)
sketch3.addGeometry(Part.Circle(V(64, 84.7, 0), V(0, 0, 1), 3), False)
sketch3.addGeometry(Part.Circle(V(64, 84.7, 0), V(0, 0, 1), 1.1), False)
sketch3.addGeometry(Part.Circle(V(73.5, 41, 0), V(0, 0, 1), 3), False)
sketch3.addGeometry(Part.Circle(V(73.5, 41, 0), V(0, 0, 1), 1.1), False)
sketch3.addGeometry(Part.Circle(V(124.8, 64.4, 0), V(0, 0, 1), 3), False)
sketch3.addGeometry(Part.Circle(V(124.8, 64.4, 0), V(0, 0, 1), 1.1), False)
sketch3.addGeometry(Part.Circle(V(134.7, 21.5, 0), V(0, 0, 1), 3), False)
sketch3.addGeometry(Part.Circle(V(134.7, 21.5, 0), V(0, 0, 1), 1.1), False)
sketch3.addConstraint(Sketcher.Constraint("Coincident", 1, 3, 0, 3))
sketch3.addConstraint(Sketcher.Constraint("Coincident", 3, 3, 2, 3))
sketch3.addConstraint(Sketcher.Constraint("Coincident", 5, 3, 4, 3))
sketch3.addConstraint(Sketcher.Constraint("Coincident", 7, 3, 6, 3))
sketch3.addConstraint(Sketcher.Constraint("Coincident", 9, 3, 8, 3))
sketch3.addConstraint(Sketcher.Constraint("Coincident", 11, 3, 10, 3))
sketch3.addConstraint(Sketcher.Constraint("Equal", 0, 2))
sketch3.addConstraint(Sketcher.Constraint("Equal", 1, 3))
sketch3.addConstraint(Sketcher.Constraint("Equal", 2, 4))
sketch3.addConstraint(Sketcher.Constraint("Equal", 3, 5))
sketch3.addConstraint(Sketcher.Constraint("Equal", 4, 6))
sketch3.addConstraint(Sketcher.Constraint("Equal", 5, 7))
sketch3.addConstraint(Sketcher.Constraint("Equal", 6, 8))
sketch3.addConstraint(Sketcher.Constraint("Equal", 8, 10))
sketch3.addConstraint(Sketcher.Constraint("Equal", 7, 11))
sketch3.addConstraint(Sketcher.Constraint("Diameter", 0, 6.0))
sketch3.addConstraint(Sketcher.Constraint("DistanceY", 6, 3, 4, 3, 43.699999))
sketch3.addConstraint(Sketcher.Constraint("DistanceX", 6, 3, 8, 3, 51.299998))
sketch3.addConstraint(Sketcher.Constraint("Diameter", 5, 2.20019))
sketch3.addConstraint(Sketcher.Constraint("Diameter", 9, 2.290803))
sketch3.addConstraint(Sketcher.Constraint("DistanceY", -1, 1, 0, 3, 43.435559))
sketch3.addConstraint(Sketcher.Constraint("DistanceX", -1, 1, 4, 3, 63.996818))
sketch3.addConstraint(Sketcher.Constraint("DistanceX", -1, 1, 8, 3, 124.796821))
sketch3.addConstraint(Sketcher.Constraint("DistanceY", -1, 1, 8, 3, 64.40545))
sketch3.addConstraint(Sketcher.Constraint("DistanceY", -1, 1, 10, 3, 21.546419))
sketch3.addConstraint(Sketcher.Constraint("DistanceY", 0, 3, 4, 3, 41.269888))
sketch3.addConstraint(Sketcher.Constraint("DistanceX", 0, 3, 6, 3, 48.318479))
sketch3.addConstraint(Sketcher.Constraint("DistanceX", 6, 3, 10, 3, 61.212492))
sketch3.addConstraint(Sketcher.Constraint("DistanceX", -1, 1, 2, 3, 22.534056))
sketch3.addConstraint(Sketcher.Constraint("DistanceY", -1, 1, 2, 3, 62.250654))
sketch3.setExpression("Constraints[15]", "Params.sketch3_diameter")
pad3 = doc.addObject("PartDesign::Pad", "Pad002")
body.addObject(pad3)
pad3.Profile = sketch3
pad3.setExpression("Length", "Params.pad3_length")

sketch4 = doc.addObject("Sketcher::SketchObject", "Sketch003")
body.addObject(sketch4)
sketch4.AttachmentSupport = (doc.YZ_Plane, [""])
sketch4.MapMode = "FlatFace"
sketch4.AttachmentOffset = App.Placement(V(0, 0, 157.671814), App.Rotation())
sketch4.addGeometry(Part.LineSegment(V(52.7, 2, 0), V(62.7, 2, 0)), False)
sketch4.addGeometry(Part.ArcOfCircle(Part.Circle(V(62.7, 4, 0), V(0, 0, 1), 2), math.radians(-90), math.radians(90)), False)
sketch4.addGeometry(Part.LineSegment(V(62.7, 6, 0), V(52.7, 6, 0)), False)
sketch4.addGeometry(Part.ArcOfCircle(Part.Circle(V(52.7, 4, 0), V(0, 0, 1), 2), math.radians(90), math.radians(270)), False)
sketch4.addConstraint(Sketcher.Constraint("Tangent", 0, 2, 1, 1))
sketch4.addConstraint(Sketcher.Constraint("Tangent", 1, 2, 2, 1))
sketch4.addConstraint(Sketcher.Constraint("Tangent", 2, 2, 3, 1))
sketch4.addConstraint(Sketcher.Constraint("Tangent", 3, 2, 0, 1))
sketch4.addConstraint(Sketcher.Constraint("Horizontal", 0))
sketch4.addConstraint(Sketcher.Constraint("Horizontal", 2))
sketch4.addConstraint(Sketcher.Constraint("Radius", 1, 2.0))
sketch4.addConstraint(Sketcher.Constraint("DistanceX", 0, 1, 0, 2, 10.0))
sketch4.addConstraint(Sketcher.Constraint("DistanceY", -1, 1, 1, 3, 4.0))
sketch4.addConstraint(Sketcher.Constraint("DistanceX", -1, 1, 1, 3, 62.669458))
sketch4.setExpression("Constraints[6]", "Params.sketch4_radius")
sketch4.setExpression("Constraints[7]", "Params.sketch4_width")
pocket1 = doc.addObject("PartDesign::Pocket", "Pocket")
body.addObject(pocket1)
pocket1.Profile = sketch4
pocket1.setExpression("Length", "Params.pocket1_length")
doc.recompute()

fillet = doc.addObject("PartDesign::Fillet", "Fillet")
body.addObject(fillet)
fillet.Base = (pocket1, edges_at(pocket1, [
    (65.208, 19.57, 0),
    (54.403, 24.1, 0),
    (28.694, 21.655, 0),
    (7.158, 19.521, 0),
    (1.996, 49.772, 0),
    (-1.383, 80.272, 0),
    (19.67, 84.185, 0),
    (38.436, 90.681, 0),
    (38.911, 96.684, 0),
    (50.962, 98.509, 0),
    (60.922, 101.499, 0),
    (61.804, 105.878, 0),
    (73.503, 106.955, 0),
    (85.252, 106.246, 0),
    (86.215, 101.931, 0),
    (120.42, 99.78, 0),
    (156.771, 98.88, 0),
    (157.672, 55.382, 0),
    (157.497, 13.036, 0),
    (151.77, 5.639, 0),
    (144.454, -1.985, 0),
    (134.645, 5.02, 0),
    (118.658, 14.202, 0),
    (100.92, 16.975, 0),
    (81.861, 15.667, 0),
    (70.726, 14.602, 0),
]))
fillet.setExpression("Radius", "Params.fillet_radius")
doc.recompute()

chamfer = doc.addObject("PartDesign::Chamfer", "Chamfer")
body.addObject(chamfer)
chamfer.Base = (fillet, edges_at(fillet, [
    (70.726, 14.602, 10),
    (81.861, 15.667, 10),
    (100.92, 16.975, 10),
    (118.658, 14.202, 10),
    (134.645, 5.02, 10),
    (144.454, -1.985, 10),
    (151.77, 5.639, 10),
    (157.497, 13.036, 10),
    (157.672, 55.382, 10),
    (156.771, 98.88, 10),
    (120.42, 99.78, 10),
    (86.215, 101.931, 10),
    (85.252, 106.246, 10),
    (73.503, 106.955, 10),
    (61.804, 105.878, 10),
    (60.922, 101.499, 10),
    (50.962, 98.509, 10),
    (38.911, 96.684, 10),
    (38.436, 90.681, 10),
    (19.67, 84.185, 10),
    (-1.383, 80.272, 10),
    (1.996, 49.772, 10),
    (7.158, 19.521, 10),
    (28.694, 21.655, 10),
    (54.403, 24.1, 10),
    (65.208, 19.57, 10),
]))
chamfer.setExpression("Size", "Params.chamfer_size")
doc.recompute()

chamfer2 = doc.addObject("PartDesign::Chamfer", "Chamfer001")
body.addObject(chamfer2)
chamfer2.Base = (chamfer, edges_at(chamfer, [
    (133.609, 21.546, 4),
    (123.651, 64.405, 4),
    (72.397, 41.005, 4),
    (62.897, 84.705, 4),
    (21.434, 62.251, 4),
    (24.078, 43.436, 4),
]))
chamfer2.setExpression("Size", "Params.chamfer2_size")

doc.recompute()
